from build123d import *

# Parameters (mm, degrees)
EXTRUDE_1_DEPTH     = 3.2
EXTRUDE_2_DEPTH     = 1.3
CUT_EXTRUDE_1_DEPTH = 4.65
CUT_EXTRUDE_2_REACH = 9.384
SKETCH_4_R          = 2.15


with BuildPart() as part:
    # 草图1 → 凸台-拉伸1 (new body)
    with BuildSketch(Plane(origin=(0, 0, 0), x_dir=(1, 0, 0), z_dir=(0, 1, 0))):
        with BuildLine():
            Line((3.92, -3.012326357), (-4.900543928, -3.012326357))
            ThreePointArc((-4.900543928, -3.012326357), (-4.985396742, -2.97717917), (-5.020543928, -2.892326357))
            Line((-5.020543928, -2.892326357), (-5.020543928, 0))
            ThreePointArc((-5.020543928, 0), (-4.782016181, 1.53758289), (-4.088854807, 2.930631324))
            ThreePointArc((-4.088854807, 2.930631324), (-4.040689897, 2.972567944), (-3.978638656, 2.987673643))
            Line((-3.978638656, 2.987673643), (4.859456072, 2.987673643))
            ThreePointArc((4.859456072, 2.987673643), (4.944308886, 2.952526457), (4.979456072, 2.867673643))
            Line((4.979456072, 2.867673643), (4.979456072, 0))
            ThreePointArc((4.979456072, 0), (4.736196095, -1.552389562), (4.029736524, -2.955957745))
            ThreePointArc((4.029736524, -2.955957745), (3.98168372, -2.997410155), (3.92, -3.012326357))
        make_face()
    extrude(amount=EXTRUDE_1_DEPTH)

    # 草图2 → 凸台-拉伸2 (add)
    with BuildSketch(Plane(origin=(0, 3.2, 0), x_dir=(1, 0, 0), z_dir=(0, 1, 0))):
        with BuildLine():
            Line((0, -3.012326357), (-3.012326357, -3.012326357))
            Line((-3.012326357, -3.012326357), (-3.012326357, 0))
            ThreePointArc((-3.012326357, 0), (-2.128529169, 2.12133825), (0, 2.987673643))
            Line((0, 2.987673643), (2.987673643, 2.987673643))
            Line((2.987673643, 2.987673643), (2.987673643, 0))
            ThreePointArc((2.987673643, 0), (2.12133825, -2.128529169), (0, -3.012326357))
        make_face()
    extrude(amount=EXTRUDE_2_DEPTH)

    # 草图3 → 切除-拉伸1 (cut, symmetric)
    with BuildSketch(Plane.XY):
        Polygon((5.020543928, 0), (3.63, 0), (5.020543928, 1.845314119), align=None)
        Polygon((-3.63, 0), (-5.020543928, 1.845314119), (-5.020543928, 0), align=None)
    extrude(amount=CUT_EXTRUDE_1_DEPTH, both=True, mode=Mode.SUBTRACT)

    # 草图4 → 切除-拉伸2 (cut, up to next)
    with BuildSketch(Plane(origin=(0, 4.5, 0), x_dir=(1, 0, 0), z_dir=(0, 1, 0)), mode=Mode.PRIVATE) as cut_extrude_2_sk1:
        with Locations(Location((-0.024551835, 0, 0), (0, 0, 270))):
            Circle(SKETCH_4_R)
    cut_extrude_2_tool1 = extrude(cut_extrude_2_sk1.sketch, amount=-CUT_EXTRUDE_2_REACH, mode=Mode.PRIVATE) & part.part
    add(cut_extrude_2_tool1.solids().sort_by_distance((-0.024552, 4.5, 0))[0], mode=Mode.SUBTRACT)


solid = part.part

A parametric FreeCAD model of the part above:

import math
import FreeCAD as App
import Part
import Sketcher
from FreeCAD import Vector
Q = App.Units.Quantity

doc = App.newDocument("Part")
body = doc.addObject("PartDesign::Body", "Body")

sketch1 = body.newObject("Sketcher::SketchObject", "Sketch")
sketch1.AttachmentSupport = (doc.getObject("XZ_Plane"), [""])
sketch1.MapMode = "FlatFace"
sketch1.addGeometry([
    Part.LineSegment(Vector(-4.9, 3.01, 0), Vector(3.92, 3.01, 0)),
    Part.ArcOfCircle(Part.Circle(Vector(3.92, 2.88, 0), Vector(0, 0, 1), 0.14), math.radians(36), math.radians(90)),
    Part.ArcOfCircle(Part.Circle(Vector(-0.1, 0, 0), Vector(0, 0, 1), 5.07), math.radians(0), math.radians(36)),
    Part.LineSegment(Vector(4.98, 0, 0), Vector(4.98, -2.87, 0)),
    Part.ArcOfCircle(Part.Circle(Vector(4.86, -2.87, 0), Vector(0, 0, 1), 0.12), math.radians(-90), math.radians(0)),
    Part.LineSegment(Vector(4.86, -2.99, 0), Vector(-3.98, -2.99, 0)),
    Part.ArcOfCircle(Part.Circle(Vector(-3.98, -2.85, 0), Vector(0, 0, 1), 0.14), math.radians(-145), math.radians(-90)),
    Part.ArcOfCircle(Part.Circle(Vector(0.05, 0, 0), Vector(0, 0, 1), 5.08), math.radians(-180), math.radians(-145)),
    Part.LineSegment(Vector(-5.02, 0, 0), Vector(-5.02, 2.89, 0)),
    Part.ArcOfCircle(Part.Circle(Vector(-4.9, 2.89, 0), Vector(0, 0, 1), 0.12), math.radians(90), math.radians(180)),
], False)
sketch1.addConstraint([
    Sketcher.Constraint("Tangent", 0, 2, 1, 2),
    Sketcher.Constraint("Tangent", 1, 1, 2, 2),
    Sketcher.Constraint("Tangent", 2, 1, 3, 1),
    Sketcher.Constraint("Tangent", 3, 2, 4, 2),
    Sketcher.Constraint("Tangent", 4, 1, 5, 1),
    Sketcher.Constraint("Tangent", 5, 2, 6, 2),
    Sketcher.Constraint("Tangent", 6, 1, 7, 2),
    Sketcher.Constraint("Tangent", 7, 1, 8, 1),
    Sketcher.Constraint("Tangent", 8, 2, 9, 2),
    Sketcher.Constraint("Tangent", 9, 1, 0, 1),
    Sketcher.Constraint("Horizontal", 0),
    Sketcher.Constraint("Vertical", 3),
    Sketcher.Constraint("Horizontal", 5),
    Sketcher.Constraint("Vertical", 8),
    Sketcher.Constraint("Equal", 1, 6),
    Sketcher.Constraint("Equal", 2, 7),
    Sketcher.Constraint("Equal", 4, 9),
    Sketcher.Constraint("PointOnObject", 2, 3, -1),
    Sketcher.Constraint("PointOnObject", 7, 3, -1),
    Sketcher.Constraint("Radius", 4, 0.12),
    Sketcher.Constraint("Radius", 1, 0.135),
    Sketcher.Constraint("Radius", 2, 5.075),
    Sketcher.Constraint("DistanceX", -1, 1, 1, 3, 3.92),
    Sketcher.Constraint("DistanceY", 6, 3, 1, 3, 5.73),
    Sketcher.Constraint("DistanceX", 2, 3, 7, 3, 0.15),
    Sketcher.Constraint("DistanceX", 0, 1, 0, 2, 8.820544),
])
pad1 = body.newObject("PartDesign::Pad", "Pad")
pad1.Profile = sketch1
pad1.Length = 3.2
pad1.Reversed = True

sketch2 = body.newObject("Sketcher::SketchObject", "Sketch001")
sketch2.AttachmentSupport = (doc.getObject("XZ_Plane"), [""])
sketch2.MapMode = "FlatFace"
sketch2.AttachmentOffset = App.Placement(Vector(0, 0, -3.2), App.Rotation())
sketch2.addGeometry([
    Part.LineSegment(Vector(-3.012326, 3.012326, 0), Vector(0, 3.012326, 0)),
    Part.ArcOfCircle(Part.Circle(Vector(0, 0.024552, 0), Vector(0, 0, 1), 2.987775), math.radians(-0.47083), math.radians(90)),
    Part.LineSegment(Vector(2.987674, 0, 0), Vector(2.987674, -2.987674, 0)),
    Part.LineSegment(Vector(2.987674, -2.987674, 0), Vector(0, -2.987674, 0)),
    Part.ArcOfCircle(Part.Circle(Vector(-0.024552, 0, 0), Vector(0, 0, 1), 2.987775), math.radians(180), math.radians(270.47083)),
    Part.LineSegment(Vector(-3.012326, 0, 0), Vector(-3.012326, 3.012326, 0)),
], False)
sketch2.addConstraint([
    Sketcher.Constraint("Tangent", 0, 2, 1, 2),
    Sketcher.Constraint("Coincident", 1, 1, 2, 1),
    Sketcher.Constraint("Coincident", 2, 2, 3, 1),
    Sketcher.Constraint("Coincident", 3, 2, 4, 2),
    Sketcher.Constraint("Tangent", 4, 1, 5, 1),
    Sketcher.Constraint("Coincident", 5, 2, 0, 1),
    Sketcher.Constraint("Horizontal", 0),
    Sketcher.Constraint("Vertical", 2),
    Sketcher.Constraint("Horizontal", 3),
    Sketcher.Constraint("Vertical", 5),
    Sketcher.Constraint("Equal", 1, 4),
    Sketcher.Constraint("PointOnObject", 1, 3, -2),
    Sketcher.Constraint("PointOnObject", 4, 3, -1),
    Sketcher.Constraint("PointOnObject", 1, 1, -1),
    Sketcher.Constraint("PointOnObject", 3, 2, -2),
    Sketcher.Constraint("Equal", 3, 2),
    Sketcher.Constraint("DistanceY", 2, 2, 0, 2, 6.0),
    Sketcher.Constraint("Radius", 1, 2.987775),
])
pad2 = body.newObject("PartDesign::Pad", "Pad001")
pad2.Profile = sketch2
pad2.Length = 1.3
pad2.Reversed = True

sketch3 = body.newObject("Sketcher::SketchObject", "Sketch002")
sketch3.AttachmentSupport = (doc.getObject("XY_Plane"), [""])
sketch3.MapMode = "FlatFace"
sketch3.addGeometry([
    Part.LineSegment(Vector(3.6, 0, 0), Vector(5, 0, 0)),
    Part.LineSegment(Vector(5, 0, 0), Vector(5, 1.8, 0)),
    Part.LineSegment(Vector(5, 1.8, 0), Vector(3.6, 0, 0)),
    Part.LineSegment(Vector(-3.6, 0, 0), Vector(-5, 1.8, 0)),
    Part.LineSegment(Vector(-5, 1.8, 0), Vector(-5, 0, 0)),
    Part.LineSegment(Vector(-5, 0, 0), Vector(-3.6, 0, 0)),
], False)
sketch3.addConstraint([
    Sketcher.Constraint("Coincident", 0, 2, 1, 1),
    Sketcher.Constraint("Coincident", 1, 2, 2, 1),
    Sketcher.Constraint("Coincident", 2, 2, 0, 1),
    Sketcher.Constraint("Coincident", 3, 2, 4, 1),
    Sketcher.Constraint("Coincident", 4, 2, 5, 1),
    Sketcher.Constraint("Coincident", 5, 2, 3, 1),
    Sketcher.Constraint("Horizontal", 0),
    Sketcher.Constraint("Vertical", 1),
    Sketcher.Constraint("Vertical", 4),
    Sketcher.Constraint("Horizontal", 5),
    Sketcher.Constraint("Symmetric", 0, 2, 4, 2, -1, 1),
    Sketcher.Constraint("Symmetric", 2, 2, 5, 2, -2),
    Sketcher.Constraint("Horizontal", 1, 2, 3, 2),
    Sketcher.Constraint("Angle", 2, Q("-127 deg")),
    Sketcher.Constraint("DistanceX", -1, 1, 2, 2, 3.63),
    Sketcher.Constraint("DistanceX", 0, 1, 0, 2, 1.390544),
])
pocket1 = body.newObject("PartDesign::Pocket", "Pocket")
pocket1.Profile = sketch3
pocket1.Length = 9.3
pocket1.Midplane = True

sketch4 = body.newObject("Sketcher::SketchObject", "Sketch003")
sketch4.AttachmentSupport = (doc.getObject("XZ_Plane"), [""])
sketch4.MapMode = "FlatFace"
sketch4.AttachmentOffset = App.Placement(Vector(0, 0, -4.5), App.Rotation())
sketch4.addGeometry(Part.Circle(Vector(0, 0, 0), Vector(0, 0, 1), 2.1), False)
sketch4.addConstraint([
    Sketcher.Constraint("PointOnObject", 0, 3, -1),
    Sketcher.Constraint("Diameter", 0, 4.3),
    Sketcher.Constraint("DistanceX", 0, 3, -1, 1, 0.024552),
])
pocket2 = body.newObject("PartDesign::Pocket", "Pocket001")
pocket2.Profile = sketch4
pocket2.Type = "UpToFirst"
pocket2.Reversed = True

doc.recompute()
